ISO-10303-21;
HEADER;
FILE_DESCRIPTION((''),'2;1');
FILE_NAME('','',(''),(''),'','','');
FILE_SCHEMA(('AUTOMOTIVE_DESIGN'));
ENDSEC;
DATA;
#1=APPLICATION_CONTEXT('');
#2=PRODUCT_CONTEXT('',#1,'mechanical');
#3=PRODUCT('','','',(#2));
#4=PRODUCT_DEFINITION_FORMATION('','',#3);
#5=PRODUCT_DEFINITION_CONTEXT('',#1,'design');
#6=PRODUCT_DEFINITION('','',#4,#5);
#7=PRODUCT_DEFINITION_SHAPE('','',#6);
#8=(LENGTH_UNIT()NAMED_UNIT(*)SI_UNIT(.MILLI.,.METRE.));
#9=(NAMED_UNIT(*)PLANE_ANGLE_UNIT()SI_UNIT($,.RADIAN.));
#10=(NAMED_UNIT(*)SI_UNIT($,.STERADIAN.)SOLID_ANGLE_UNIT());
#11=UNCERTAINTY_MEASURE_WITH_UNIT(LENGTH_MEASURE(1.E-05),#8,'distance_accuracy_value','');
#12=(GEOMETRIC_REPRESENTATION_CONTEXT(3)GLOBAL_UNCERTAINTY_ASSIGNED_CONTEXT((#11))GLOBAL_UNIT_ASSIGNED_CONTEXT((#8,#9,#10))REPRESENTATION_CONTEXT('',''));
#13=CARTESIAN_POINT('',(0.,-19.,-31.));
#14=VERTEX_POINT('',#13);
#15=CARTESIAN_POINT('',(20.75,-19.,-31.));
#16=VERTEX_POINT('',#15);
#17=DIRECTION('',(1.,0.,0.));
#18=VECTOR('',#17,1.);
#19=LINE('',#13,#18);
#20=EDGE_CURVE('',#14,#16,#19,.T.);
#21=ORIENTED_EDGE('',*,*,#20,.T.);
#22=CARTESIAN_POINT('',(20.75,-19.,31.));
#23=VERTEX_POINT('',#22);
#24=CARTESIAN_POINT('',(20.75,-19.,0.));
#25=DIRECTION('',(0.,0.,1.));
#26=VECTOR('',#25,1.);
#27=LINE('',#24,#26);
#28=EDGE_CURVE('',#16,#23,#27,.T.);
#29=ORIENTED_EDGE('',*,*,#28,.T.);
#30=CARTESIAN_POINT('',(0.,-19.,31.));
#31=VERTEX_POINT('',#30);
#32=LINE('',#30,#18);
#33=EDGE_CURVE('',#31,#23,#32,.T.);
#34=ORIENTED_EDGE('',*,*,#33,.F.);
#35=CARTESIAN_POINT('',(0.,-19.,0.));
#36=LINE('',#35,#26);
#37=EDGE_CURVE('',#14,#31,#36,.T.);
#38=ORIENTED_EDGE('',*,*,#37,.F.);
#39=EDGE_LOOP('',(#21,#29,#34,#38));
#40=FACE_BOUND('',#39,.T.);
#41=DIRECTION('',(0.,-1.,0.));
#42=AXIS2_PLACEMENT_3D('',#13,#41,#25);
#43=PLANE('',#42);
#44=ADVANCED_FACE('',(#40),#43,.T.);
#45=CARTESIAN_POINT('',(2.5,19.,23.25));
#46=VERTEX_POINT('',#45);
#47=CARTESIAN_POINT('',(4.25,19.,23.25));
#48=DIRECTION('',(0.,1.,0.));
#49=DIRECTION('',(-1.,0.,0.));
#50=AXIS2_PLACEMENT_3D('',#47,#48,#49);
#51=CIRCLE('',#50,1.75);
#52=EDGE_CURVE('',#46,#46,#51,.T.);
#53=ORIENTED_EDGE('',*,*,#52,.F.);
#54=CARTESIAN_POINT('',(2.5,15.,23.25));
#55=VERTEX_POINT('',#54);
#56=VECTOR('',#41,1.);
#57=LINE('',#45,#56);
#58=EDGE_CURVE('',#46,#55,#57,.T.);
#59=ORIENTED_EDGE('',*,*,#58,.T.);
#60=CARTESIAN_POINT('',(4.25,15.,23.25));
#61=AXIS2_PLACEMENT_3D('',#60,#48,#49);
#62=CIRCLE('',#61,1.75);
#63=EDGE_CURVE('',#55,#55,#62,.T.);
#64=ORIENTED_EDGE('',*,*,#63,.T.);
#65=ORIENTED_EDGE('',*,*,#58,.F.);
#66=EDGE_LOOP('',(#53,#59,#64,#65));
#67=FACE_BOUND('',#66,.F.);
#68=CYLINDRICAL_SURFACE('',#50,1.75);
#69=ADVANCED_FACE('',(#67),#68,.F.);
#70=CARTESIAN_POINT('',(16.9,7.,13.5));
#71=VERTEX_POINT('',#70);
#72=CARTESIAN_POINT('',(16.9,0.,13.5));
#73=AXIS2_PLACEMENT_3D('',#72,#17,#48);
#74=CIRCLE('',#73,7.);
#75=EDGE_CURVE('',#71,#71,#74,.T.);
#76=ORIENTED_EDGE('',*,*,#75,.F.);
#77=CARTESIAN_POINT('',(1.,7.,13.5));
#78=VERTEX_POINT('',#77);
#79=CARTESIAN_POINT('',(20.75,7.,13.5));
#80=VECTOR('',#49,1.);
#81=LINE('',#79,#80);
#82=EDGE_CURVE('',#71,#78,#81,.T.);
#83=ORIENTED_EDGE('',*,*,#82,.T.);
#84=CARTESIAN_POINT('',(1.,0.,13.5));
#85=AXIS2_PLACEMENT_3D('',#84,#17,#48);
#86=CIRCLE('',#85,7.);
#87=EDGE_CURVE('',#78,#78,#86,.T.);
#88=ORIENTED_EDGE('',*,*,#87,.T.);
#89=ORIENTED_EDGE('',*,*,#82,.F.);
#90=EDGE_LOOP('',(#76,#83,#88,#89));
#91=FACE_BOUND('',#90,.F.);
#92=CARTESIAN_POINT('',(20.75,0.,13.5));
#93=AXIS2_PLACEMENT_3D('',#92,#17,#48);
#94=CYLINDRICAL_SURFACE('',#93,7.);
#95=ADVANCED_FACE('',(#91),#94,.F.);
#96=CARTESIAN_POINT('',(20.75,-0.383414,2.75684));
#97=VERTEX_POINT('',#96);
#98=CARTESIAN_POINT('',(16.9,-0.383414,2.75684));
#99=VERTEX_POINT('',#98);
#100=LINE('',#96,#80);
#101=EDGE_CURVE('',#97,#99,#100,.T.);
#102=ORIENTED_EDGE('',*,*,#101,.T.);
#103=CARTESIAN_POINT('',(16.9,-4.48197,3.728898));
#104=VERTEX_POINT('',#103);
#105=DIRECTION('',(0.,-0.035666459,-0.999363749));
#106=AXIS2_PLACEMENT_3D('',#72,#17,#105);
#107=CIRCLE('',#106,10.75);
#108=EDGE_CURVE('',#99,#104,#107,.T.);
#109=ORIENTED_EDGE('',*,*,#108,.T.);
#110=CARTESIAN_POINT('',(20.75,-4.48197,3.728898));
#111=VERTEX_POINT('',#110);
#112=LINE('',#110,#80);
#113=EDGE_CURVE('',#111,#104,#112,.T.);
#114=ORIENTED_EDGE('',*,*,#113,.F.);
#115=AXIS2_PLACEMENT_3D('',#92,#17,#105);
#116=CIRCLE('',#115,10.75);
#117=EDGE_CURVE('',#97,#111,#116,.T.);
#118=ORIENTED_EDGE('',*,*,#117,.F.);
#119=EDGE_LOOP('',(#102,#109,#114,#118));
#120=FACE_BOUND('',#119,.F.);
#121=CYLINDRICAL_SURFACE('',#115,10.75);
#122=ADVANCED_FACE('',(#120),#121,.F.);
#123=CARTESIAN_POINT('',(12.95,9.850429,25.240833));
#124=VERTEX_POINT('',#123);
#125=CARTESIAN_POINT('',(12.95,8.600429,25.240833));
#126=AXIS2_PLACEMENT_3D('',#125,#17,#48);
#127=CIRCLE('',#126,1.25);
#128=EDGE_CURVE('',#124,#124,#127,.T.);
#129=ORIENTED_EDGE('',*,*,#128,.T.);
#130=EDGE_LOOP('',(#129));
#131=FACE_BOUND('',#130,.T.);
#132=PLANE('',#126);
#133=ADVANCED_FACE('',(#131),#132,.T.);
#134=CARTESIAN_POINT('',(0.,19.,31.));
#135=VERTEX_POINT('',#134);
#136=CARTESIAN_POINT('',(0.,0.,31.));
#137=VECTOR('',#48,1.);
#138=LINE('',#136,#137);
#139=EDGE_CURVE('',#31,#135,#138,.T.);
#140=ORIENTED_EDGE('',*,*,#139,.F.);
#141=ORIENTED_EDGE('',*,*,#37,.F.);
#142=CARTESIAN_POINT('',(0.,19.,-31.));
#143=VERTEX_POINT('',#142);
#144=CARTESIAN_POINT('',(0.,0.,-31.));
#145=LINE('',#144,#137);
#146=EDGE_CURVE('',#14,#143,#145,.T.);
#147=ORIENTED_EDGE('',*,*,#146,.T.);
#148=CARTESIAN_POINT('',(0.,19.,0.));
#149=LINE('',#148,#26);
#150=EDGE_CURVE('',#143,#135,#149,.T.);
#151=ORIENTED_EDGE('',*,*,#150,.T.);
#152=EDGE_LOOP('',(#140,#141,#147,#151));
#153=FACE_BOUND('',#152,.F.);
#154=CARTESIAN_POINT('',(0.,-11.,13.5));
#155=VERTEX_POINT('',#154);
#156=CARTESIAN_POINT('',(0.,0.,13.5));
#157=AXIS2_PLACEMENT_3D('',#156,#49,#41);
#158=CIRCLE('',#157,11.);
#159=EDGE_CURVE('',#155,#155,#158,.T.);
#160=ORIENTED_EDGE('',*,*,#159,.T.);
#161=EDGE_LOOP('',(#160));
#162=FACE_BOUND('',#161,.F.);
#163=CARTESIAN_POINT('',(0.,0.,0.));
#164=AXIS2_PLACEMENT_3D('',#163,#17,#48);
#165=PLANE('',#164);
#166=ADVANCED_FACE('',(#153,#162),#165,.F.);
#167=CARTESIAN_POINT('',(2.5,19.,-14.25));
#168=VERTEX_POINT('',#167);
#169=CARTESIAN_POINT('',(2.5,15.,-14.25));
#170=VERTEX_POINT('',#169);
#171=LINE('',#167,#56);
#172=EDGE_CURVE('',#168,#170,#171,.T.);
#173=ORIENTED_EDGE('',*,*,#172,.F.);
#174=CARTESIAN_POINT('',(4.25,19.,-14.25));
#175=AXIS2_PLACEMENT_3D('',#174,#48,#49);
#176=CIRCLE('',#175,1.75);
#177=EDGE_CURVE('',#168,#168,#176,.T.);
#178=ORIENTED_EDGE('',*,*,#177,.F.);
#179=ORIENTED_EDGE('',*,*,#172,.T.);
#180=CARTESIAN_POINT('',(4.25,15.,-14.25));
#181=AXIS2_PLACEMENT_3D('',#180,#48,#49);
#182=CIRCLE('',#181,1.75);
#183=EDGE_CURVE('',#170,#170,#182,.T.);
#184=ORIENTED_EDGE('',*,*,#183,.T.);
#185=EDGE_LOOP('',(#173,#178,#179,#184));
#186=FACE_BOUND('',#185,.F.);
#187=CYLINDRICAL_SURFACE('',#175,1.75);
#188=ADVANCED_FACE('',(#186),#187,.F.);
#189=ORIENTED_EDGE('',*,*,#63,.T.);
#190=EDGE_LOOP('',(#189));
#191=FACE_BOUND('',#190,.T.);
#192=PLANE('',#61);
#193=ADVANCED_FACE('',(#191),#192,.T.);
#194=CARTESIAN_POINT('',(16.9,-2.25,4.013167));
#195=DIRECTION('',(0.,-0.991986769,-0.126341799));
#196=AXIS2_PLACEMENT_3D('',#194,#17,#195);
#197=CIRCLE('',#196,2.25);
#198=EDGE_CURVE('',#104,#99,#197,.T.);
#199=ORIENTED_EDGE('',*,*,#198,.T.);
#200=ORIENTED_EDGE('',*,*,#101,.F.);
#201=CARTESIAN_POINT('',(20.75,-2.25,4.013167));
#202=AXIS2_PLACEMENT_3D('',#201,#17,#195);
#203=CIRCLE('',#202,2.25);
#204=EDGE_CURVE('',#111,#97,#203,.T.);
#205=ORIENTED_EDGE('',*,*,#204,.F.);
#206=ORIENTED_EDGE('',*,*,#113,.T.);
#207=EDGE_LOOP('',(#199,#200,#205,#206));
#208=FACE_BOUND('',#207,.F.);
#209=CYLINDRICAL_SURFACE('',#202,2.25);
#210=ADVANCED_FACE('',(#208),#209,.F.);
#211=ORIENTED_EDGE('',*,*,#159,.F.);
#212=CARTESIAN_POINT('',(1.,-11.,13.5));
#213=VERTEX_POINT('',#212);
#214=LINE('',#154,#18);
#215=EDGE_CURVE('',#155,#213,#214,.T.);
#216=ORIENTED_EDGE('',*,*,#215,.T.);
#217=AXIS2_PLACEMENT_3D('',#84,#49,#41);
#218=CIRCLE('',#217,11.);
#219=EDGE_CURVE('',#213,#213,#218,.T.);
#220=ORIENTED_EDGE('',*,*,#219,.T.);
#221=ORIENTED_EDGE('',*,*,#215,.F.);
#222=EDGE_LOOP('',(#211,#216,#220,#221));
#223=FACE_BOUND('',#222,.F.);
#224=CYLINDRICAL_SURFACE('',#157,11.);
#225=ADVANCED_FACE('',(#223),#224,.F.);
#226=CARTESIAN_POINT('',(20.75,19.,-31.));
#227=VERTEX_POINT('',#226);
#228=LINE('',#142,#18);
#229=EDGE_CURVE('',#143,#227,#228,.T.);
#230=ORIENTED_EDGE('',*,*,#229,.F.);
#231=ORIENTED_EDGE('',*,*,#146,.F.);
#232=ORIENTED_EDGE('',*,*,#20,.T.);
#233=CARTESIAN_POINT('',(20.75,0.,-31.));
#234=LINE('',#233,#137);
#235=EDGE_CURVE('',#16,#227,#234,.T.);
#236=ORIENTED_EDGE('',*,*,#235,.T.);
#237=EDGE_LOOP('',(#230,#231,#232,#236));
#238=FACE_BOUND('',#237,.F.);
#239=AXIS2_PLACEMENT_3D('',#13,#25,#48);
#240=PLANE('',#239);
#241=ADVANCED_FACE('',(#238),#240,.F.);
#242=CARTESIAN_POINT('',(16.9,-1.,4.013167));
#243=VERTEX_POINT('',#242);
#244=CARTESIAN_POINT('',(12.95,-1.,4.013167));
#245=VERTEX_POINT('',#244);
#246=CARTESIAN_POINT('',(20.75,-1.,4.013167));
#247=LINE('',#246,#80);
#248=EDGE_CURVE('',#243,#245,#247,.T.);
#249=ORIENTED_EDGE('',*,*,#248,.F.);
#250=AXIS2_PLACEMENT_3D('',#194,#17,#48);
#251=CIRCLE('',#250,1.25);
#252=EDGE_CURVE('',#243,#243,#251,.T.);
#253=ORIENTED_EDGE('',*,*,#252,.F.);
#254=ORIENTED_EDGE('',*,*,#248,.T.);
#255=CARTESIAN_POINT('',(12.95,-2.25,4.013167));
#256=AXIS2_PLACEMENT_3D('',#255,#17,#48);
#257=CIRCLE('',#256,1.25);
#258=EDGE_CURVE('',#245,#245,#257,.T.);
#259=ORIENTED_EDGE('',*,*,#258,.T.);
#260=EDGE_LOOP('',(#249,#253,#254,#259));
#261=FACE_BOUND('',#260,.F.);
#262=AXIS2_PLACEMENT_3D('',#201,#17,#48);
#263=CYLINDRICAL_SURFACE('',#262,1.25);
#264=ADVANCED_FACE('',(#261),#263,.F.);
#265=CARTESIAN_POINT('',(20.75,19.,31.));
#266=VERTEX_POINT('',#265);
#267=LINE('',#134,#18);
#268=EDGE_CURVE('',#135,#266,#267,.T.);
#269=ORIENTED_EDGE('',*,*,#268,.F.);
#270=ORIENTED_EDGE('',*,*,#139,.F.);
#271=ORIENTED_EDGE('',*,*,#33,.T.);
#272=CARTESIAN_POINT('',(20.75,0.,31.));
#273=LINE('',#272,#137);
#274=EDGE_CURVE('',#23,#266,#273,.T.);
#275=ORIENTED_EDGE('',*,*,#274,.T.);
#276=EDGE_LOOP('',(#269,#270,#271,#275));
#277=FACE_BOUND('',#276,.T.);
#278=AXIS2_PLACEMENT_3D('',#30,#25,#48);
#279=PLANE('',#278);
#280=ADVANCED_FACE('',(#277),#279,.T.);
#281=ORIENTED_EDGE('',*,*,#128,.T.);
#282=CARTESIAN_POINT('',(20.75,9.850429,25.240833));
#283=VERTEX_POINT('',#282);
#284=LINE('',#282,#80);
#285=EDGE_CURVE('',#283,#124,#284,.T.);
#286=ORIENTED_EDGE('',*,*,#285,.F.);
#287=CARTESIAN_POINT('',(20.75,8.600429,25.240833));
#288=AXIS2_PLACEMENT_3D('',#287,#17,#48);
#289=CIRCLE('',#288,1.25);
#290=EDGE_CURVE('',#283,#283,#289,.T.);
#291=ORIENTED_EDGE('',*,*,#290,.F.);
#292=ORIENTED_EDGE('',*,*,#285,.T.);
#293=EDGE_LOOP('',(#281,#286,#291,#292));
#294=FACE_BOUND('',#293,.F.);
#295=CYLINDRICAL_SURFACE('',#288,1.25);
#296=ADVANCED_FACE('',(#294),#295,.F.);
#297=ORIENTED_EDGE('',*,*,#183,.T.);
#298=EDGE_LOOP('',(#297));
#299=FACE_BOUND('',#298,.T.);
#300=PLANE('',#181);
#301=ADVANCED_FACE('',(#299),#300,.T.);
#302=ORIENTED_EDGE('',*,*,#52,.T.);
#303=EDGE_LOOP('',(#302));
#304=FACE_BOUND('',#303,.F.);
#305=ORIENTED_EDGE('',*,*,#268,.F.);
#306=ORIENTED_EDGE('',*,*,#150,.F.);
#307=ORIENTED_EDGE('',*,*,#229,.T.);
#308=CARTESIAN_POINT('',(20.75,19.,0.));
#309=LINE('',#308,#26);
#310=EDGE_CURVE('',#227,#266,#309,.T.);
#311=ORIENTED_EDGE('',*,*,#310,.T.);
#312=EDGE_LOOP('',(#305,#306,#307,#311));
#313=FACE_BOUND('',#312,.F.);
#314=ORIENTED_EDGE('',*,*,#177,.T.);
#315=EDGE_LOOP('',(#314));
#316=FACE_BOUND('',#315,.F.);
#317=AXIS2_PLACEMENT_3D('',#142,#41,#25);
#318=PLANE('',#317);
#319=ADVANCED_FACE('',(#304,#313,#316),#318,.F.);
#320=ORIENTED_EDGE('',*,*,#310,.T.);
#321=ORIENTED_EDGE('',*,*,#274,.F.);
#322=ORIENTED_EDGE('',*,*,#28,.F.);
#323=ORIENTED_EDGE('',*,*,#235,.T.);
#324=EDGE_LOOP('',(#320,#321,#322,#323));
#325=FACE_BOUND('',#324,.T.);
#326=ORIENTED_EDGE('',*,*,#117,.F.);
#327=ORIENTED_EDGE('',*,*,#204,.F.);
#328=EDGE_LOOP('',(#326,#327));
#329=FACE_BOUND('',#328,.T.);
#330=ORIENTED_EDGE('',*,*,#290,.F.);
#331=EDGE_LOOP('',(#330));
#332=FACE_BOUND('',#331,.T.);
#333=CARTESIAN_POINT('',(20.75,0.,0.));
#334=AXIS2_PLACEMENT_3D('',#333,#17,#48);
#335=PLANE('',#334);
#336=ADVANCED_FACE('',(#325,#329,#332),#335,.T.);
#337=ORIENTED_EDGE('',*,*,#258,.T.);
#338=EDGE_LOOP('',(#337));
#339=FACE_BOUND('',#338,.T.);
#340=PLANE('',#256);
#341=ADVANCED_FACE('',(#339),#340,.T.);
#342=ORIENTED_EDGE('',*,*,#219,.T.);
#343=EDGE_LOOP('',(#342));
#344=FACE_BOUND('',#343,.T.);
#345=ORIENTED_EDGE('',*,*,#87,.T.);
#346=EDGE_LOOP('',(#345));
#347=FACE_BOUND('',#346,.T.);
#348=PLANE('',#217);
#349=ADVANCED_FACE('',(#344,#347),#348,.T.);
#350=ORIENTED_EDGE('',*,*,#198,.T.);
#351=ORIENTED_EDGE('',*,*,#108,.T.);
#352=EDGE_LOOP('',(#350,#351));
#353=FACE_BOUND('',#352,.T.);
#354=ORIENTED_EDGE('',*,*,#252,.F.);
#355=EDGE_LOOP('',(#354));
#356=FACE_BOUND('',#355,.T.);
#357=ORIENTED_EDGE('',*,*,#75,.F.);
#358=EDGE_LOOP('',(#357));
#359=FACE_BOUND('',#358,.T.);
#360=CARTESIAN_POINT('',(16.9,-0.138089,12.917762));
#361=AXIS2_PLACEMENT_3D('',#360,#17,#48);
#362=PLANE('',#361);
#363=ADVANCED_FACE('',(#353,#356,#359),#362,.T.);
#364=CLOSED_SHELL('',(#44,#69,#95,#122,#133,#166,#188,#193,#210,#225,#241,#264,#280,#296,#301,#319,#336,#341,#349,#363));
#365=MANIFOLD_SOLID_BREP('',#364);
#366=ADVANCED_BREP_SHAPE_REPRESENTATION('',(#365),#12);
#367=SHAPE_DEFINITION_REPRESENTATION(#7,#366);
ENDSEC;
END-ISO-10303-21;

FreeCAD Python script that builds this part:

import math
import FreeCAD as App
import Part
import Sketcher
from FreeCAD import Vector
Q = App.Units.Quantity


def add_polygon(sketch, points):
    """Adds a closed chain of lines whose ends are joined by coincident constraints."""
    first, n = sketch.GeometryCount, len(points)
    for a, b in zip(points, points[1:] + points[:1]):
        sketch.addGeometry(Part.LineSegment(App.Vector(*a, 0), App.Vector(*b, 0)), False)
    for i in range(n):
        sketch.addConstraint(Sketcher.Constraint("Coincident", first + i, 2, first + (i + 1) % n, 1))

doc = App.newDocument("Part")
body = doc.addObject("PartDesign::Body", "Body")

# Sketch on YZ plane
sketch1 = body.newObject("Sketcher::SketchObject", "Sketch")
sketch1.AttachmentSupport = (doc.getObject("YZ_Plane"), [""])
sketch1.MapMode = "FlatFace"
add_polygon(sketch1, [(-19, 31), (-19, -31), (19, -31), (19, 31)])  # lines 0-3
sketch1.addConstraint(Sketcher.Constraint("Vertical", 0))
sketch1.addConstraint(Sketcher.Constraint("Horizontal", 1))
sketch1.addConstraint(Sketcher.Constraint("Vertical", 2))
sketch1.addConstraint(Sketcher.Constraint("Horizontal", 3))
sketch1.addConstraint(Sketcher.Constraint("Symmetric", 0, 2, 2, 2, -1, 1))
sketch1.addConstraint(Sketcher.Constraint("DistanceX", 1, 1, 1, 2, Q("38 mm")))
sketch1.addConstraint(Sketcher.Constraint("DistanceY", 0, 2, 0, 1, Q("62 mm")))
pad1 = body.newObject("PartDesign::Pad", "Pad")
pad1.Profile = sketch1
pad1.Length = 20.75

# Sketch on YZ plane
sketch2 = body.newObject("Sketcher::SketchObject", "Sketch001")
sketch2.AttachmentSupport = (doc.getObject("YZ_Plane"), [""])
sketch2.MapMode = "FlatFace"
sketch2.AttachmentOffset = App.Placement(Vector(0, 0, 20.75), App.Rotation())
sketch2.addGeometry(Part.ArcOfCircle(Part.Circle(Vector(-2.25, 4.013167, 0), Vector(0, 0, 1), 2.25), math.radians(-172.74175), math.radians(-33.94298)), False)
sketch2.addGeometry(Part.ArcOfCircle(Part.Circle(Vector(0, 13.5, 0), Vector(0, 0, 1), 10.75), math.radians(-92.043971), math.radians(245.359241)), False)
sketch2.addGeometry(Part.Circle(Vector(-2.25, 4.013167, 0), Vector(0, 0, 1), 1.25), False)
sketch2.addGeometry(Part.Circle(Vector(0, 13.5, 0), Vector(0, 0, 1), 7), False)
sketch2.addConstraint(Sketcher.Constraint("Coincident", 0, 1, 1, 2))
sketch2.addConstraint(Sketcher.Constraint("Coincident", 1, 1, 0, 2))
sketch2.addConstraint(Sketcher.Constraint("Coincident", 2, 3, 0, 3))
sketch2.addConstraint(Sketcher.Constraint("Coincident", 3, 3, 1, 3))
sketch2.addConstraint(Sketcher.Constraint("PointOnObject", 1, 3, -2))
sketch2.addConstraint(Sketcher.Constraint("Diameter", 3, Q("14 mm")))
sketch2.addConstraint(Sketcher.Constraint("Diameter", 2, Q("2.5 mm")))
sketch2.addConstraint(Sketcher.Constraint("Radius", 0, Q("2.25 mm")))
sketch2.addConstraint(Sketcher.Constraint("Radius", 1, Q("10.75 mm")))
sketch2.addConstraint(Sketcher.Constraint("DistanceY", -1, 1, 1, 3, Q("13.5 mm")))
sketch2.addConstraint(Sketcher.Constraint("DistanceX", 0, 3, -1, 1, Q("2.25 mm")))
sketch2.addConstraint(Sketcher.Constraint("DistanceY", 0, 1, 1, 3, Q("9.771102 mm")))
pocket1 = body.newObject("PartDesign::Pocket", "Pocket")
pocket1.Profile = sketch2
pocket1.Length = 3.85

# Sketch on YZ plane
sketch3 = body.newObject("Sketcher::SketchObject", "Sketch002")
sketch3.AttachmentSupport = (doc.getObject("YZ_Plane"), [""])
sketch3.MapMode = "FlatFace"
sketch3.AttachmentOffset = App.Placement(Vector(0, 0, 20.75), App.Rotation())
sketch3.addGeometry(Part.Circle(Vector(-2.25, 4.013167, 0), Vector(0, 0, 1), 1.25), False)
sketch3.addGeometry(Part.Circle(Vector(8.600429, 25.240833, 0), Vector(0, 0, 1), 1.25), False)
sketch3.addConstraint(Sketcher.Constraint("Equal", 0, 1))
sketch3.addConstraint(Sketcher.Constraint("Diameter", 0, Q("2.5 mm")))
sketch3.addConstraint(Sketcher.Constraint("DistanceX", 0, 3, -1, 1, Q("2.25 mm")))
sketch3.addConstraint(Sketcher.Constraint("DistanceX", -1, 1, 1, 3, Q("8.600429 mm")))
sketch3.addConstraint(Sketcher.Constraint("DistanceY", -1, 1, 0, 3, Q("4.013167 mm")))
sketch3.addConstraint(Sketcher.Constraint("DistanceY", -1, 1, 1, 3, Q("25.240833 mm")))
pocket2 = body.newObject("PartDesign::Pocket", "Pocket001")
pocket2.Profile = sketch3
pocket2.Length = 7.8

# Sketch on YZ plane
sketch4 = body.newObject("Sketcher::SketchObject", "Sketch003")
sketch4.AttachmentSupport = (doc.getObject("YZ_Plane"), [""])
sketch4.MapMode = "FlatFace"
sketch4.AttachmentOffset = App.Placement(Vector(0, 0, 20.75), App.Rotation())
sketch4.addGeometry(Part.Circle(Vector(0, 13.5, 0), Vector(0, 0, 1), 7), False)
sketch4.addConstraint(Sketcher.Constraint("PointOnObject", 0, 3, -2))
sketch4.addConstraint(Sketcher.Constraint("Diameter", 0, Q("14 mm")))
sketch4.addConstraint(Sketcher.Constraint("DistanceY", -1, 1, 0, 3, Q("13.5 mm")))
pocket3 = body.newObject("PartDesign::Pocket", "Pocket002")
pocket3.Profile = sketch4
pocket3.Type = "ThroughAll"

# Sketch on YZ plane
sketch5 = body.newObject("Sketcher::SketchObject", "Sketch004")
sketch5.AttachmentSupport = (doc.getObject("YZ_Plane"), [""])
sketch5.MapMode = "FlatFace"
sketch5.addGeometry(Part.Circle(Vector(0, 13.5, 0), Vector(0, 0, 1), 11), False)
sketch5.addGeometry(Part.Circle(Vector(0, 13.5, 0), Vector(0, 0, 1), 7), False)
sketch5.addConstraint(Sketcher.Constraint("Coincident", 1, 3, 0, 3))
sketch5.addConstraint(Sketcher.Constraint("PointOnObject", 0, 3, -2))
sketch5.addConstraint(Sketcher.Constraint("Diameter", 0, Q("22 mm")))
sketch5.addConstraint(Sketcher.Constraint("Diameter", 1, Q("14 mm")))
sketch5.addConstraint(Sketcher.Constraint("DistanceY", -1, 1, 0, 3, Q("13.5 mm")))
pocket4 = body.newObject("PartDesign::Pocket", "Pocket003")
pocket4.Profile = sketch5
pocket4.Length = 1
pocket4.Reversed = True

# Sketch on XZ plane
sketch6 = body.newObject("Sketcher::SketchObject", "Sketch005")
sketch6.AttachmentSupport = (doc.getObject("XZ_Plane"), [""])
sketch6.MapMode = "FlatFace"
sketch6.AttachmentOffset = App.Placement(Vector(0, 0, -19), App.Rotation())
sketch6.addGeometry(Part.Circle(Vector(4.25, 23.25, 0), Vector(0, 0, 1), 1.75), False)
sketch6.addGeometry(Part.Circle(Vector(4.25, -14.25, 0), Vector(0, 0, 1), 1.75), False)
sketch6.addConstraint(Sketcher.Constraint("Equal", 0, 1))
sketch6.addConstraint(Sketcher.Constraint("Vertical", 0, 3, 1, 3))
sketch6.addConstraint(Sketcher.Constraint("Diameter", 0, Q("3.5 mm")))
sketch6.addConstraint(Sketcher.Constraint("DistanceY", 1, 3, 0, 3, Q("37.5 mm")))
sketch6.addConstraint(Sketcher.Constraint("DistanceX", -1, 1, 0, 3, Q("4.25 mm")))
sketch6.addConstraint(Sketcher.Constraint("DistanceY", -1, 1, 0, 3, Q("23.25 mm")))
pocket5 = body.newObject("PartDesign::Pocket", "Pocket004")
pocket5.Profile = sketch6
pocket5.Length = 4
pocket5.Reversed = True

doc.recompute()
